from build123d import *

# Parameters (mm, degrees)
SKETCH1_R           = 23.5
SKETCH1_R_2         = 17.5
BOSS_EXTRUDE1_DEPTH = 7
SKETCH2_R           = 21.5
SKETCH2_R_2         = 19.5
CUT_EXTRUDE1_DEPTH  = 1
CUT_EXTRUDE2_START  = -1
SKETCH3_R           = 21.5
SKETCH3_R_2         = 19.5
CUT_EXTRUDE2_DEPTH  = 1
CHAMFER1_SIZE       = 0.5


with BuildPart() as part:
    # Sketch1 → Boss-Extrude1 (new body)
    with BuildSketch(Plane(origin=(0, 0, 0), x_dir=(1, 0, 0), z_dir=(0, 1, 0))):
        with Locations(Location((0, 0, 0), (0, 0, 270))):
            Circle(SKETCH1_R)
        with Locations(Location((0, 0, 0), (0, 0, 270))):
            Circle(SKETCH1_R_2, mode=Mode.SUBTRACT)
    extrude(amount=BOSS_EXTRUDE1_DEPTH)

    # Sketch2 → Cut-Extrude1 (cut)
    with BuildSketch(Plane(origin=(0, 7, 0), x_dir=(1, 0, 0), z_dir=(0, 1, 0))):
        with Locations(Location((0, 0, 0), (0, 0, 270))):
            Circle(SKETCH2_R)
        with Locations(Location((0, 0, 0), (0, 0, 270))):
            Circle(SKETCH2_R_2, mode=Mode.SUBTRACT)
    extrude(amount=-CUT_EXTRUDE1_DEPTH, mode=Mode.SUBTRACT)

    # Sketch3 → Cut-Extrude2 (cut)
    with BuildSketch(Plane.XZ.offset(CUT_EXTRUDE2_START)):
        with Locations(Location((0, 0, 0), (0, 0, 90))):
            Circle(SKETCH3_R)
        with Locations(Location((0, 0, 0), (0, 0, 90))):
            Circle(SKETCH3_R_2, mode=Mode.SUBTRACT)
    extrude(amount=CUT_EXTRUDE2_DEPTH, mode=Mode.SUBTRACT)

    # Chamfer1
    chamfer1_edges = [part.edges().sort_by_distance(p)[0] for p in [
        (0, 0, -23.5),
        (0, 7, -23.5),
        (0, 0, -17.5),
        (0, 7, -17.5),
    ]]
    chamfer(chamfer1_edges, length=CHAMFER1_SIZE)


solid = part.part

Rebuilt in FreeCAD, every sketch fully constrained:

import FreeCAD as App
import Part
import Sketcher


def edges_at(feature, points):
    """Names of the edges that pass closest to the given points."""
    edges = feature.Shape.Edges
    near = lambda p: min(range(len(edges)), key=lambda i: edges[i].distToShape(Part.Vertex(*p))[0])
    return sorted({f"Edge{near(p) + 1}" for p in points})

doc = App.newDocument("Part")
body = doc.addObject("PartDesign::Body", "Body")

sketch1 = body.newObject("Sketcher::SketchObject", "Sketch")
sketch1.AttachmentSupport = (doc.getObject("XZ_Plane"), [""])
sketch1.MapMode = "FlatFace"
sketch1.addGeometry([
    Part.Circle(App.Vector(0, 0, 0), App.Vector(0, 0, 1), 23.5),
    Part.Circle(App.Vector(0, 0, 0), App.Vector(0, 0, 1), 17.5),
], False)
sketch1.addConstraint([
    Sketcher.Constraint("Coincident", 0, 3, -1, 1),
    Sketcher.Constraint("Coincident", 1, 3, -1, 1),
    Sketcher.Constraint("Diameter", 0, 47.0),
    Sketcher.Constraint("Diameter", 1, 35.0),
])
pad1 = body.newObject("PartDesign::Pad", "Pad")
pad1.Profile = sketch1
pad1.Length = 7
pad1.Reversed = True

sketch2 = body.newObject("Sketcher::SketchObject", "Sketch001")
sketch2.AttachmentSupport = (doc.getObject("XZ_Plane"), [""])
sketch2.MapMode = "FlatFace"
sketch2.AttachmentOffset = App.Placement(App.Vector(0, 0, -7), App.Rotation())
sketch2.addGeometry([
    Part.Circle(App.Vector(0, 0, 0), App.Vector(0, 0, 1), 21.5),
    Part.Circle(App.Vector(0, 0, 0), App.Vector(0, 0, 1), 19.5),
], False)
sketch2.addConstraint([
    Sketcher.Constraint("Coincident", 0, 3, -1, 1),
    Sketcher.Constraint("Coincident", 1, 3, -1, 1),
    Sketcher.Constraint("Diameter", 0, 43.0),
    Sketcher.Constraint("Diameter", 1, 39.0),
])
pocket1 = body.newObject("PartDesign::Pocket", "Pocket")
pocket1.Profile = sketch2
pocket1.Length = 1
pocket1.Reversed = True

sketch3 = body.newObject("Sketcher::SketchObject", "Sketch002")
sketch3.AttachmentSupport = (doc.getObject("XZ_Plane"), [""])
sketch3.MapMode = "FlatFace"
sketch3.AttachmentOffset = App.Placement(App.Vector(0, 0, -1), App.Rotation())
sketch3.addGeometry([
    Part.Circle(App.Vector(0, 0, 0), App.Vector(0, 0, 1), 21.5),
    Part.Circle(App.Vector(0, 0, 0), App.Vector(0, 0, 1), 19.5),
], False)
sketch3.addConstraint([
    Sketcher.Constraint("Coincident", 0, 3, -1, 1),
    Sketcher.Constraint("Coincident", 1, 3, -1, 1),
    Sketcher.Constraint("Diameter", 0, 43.0),
    Sketcher.Constraint("Diameter", 1, 39.0),
])
pocket2 = body.newObject("PartDesign::Pocket", "Pocket001")
pocket2.Profile = sketch3
pocket2.Length = 1
pocket2.Reversed = True
doc.recompute()

chamfer = body.newObject("PartDesign::Chamfer", "Chamfer")
chamfer.Base = (pocket2, edges_at(pocket2, [
    (0, 0, -23.5),
    (0, 7, -23.5),
    (0, 0, -17.5),
    (0, 7, -17.5),
]))
chamfer.Size = 0.5

doc.recompute()
